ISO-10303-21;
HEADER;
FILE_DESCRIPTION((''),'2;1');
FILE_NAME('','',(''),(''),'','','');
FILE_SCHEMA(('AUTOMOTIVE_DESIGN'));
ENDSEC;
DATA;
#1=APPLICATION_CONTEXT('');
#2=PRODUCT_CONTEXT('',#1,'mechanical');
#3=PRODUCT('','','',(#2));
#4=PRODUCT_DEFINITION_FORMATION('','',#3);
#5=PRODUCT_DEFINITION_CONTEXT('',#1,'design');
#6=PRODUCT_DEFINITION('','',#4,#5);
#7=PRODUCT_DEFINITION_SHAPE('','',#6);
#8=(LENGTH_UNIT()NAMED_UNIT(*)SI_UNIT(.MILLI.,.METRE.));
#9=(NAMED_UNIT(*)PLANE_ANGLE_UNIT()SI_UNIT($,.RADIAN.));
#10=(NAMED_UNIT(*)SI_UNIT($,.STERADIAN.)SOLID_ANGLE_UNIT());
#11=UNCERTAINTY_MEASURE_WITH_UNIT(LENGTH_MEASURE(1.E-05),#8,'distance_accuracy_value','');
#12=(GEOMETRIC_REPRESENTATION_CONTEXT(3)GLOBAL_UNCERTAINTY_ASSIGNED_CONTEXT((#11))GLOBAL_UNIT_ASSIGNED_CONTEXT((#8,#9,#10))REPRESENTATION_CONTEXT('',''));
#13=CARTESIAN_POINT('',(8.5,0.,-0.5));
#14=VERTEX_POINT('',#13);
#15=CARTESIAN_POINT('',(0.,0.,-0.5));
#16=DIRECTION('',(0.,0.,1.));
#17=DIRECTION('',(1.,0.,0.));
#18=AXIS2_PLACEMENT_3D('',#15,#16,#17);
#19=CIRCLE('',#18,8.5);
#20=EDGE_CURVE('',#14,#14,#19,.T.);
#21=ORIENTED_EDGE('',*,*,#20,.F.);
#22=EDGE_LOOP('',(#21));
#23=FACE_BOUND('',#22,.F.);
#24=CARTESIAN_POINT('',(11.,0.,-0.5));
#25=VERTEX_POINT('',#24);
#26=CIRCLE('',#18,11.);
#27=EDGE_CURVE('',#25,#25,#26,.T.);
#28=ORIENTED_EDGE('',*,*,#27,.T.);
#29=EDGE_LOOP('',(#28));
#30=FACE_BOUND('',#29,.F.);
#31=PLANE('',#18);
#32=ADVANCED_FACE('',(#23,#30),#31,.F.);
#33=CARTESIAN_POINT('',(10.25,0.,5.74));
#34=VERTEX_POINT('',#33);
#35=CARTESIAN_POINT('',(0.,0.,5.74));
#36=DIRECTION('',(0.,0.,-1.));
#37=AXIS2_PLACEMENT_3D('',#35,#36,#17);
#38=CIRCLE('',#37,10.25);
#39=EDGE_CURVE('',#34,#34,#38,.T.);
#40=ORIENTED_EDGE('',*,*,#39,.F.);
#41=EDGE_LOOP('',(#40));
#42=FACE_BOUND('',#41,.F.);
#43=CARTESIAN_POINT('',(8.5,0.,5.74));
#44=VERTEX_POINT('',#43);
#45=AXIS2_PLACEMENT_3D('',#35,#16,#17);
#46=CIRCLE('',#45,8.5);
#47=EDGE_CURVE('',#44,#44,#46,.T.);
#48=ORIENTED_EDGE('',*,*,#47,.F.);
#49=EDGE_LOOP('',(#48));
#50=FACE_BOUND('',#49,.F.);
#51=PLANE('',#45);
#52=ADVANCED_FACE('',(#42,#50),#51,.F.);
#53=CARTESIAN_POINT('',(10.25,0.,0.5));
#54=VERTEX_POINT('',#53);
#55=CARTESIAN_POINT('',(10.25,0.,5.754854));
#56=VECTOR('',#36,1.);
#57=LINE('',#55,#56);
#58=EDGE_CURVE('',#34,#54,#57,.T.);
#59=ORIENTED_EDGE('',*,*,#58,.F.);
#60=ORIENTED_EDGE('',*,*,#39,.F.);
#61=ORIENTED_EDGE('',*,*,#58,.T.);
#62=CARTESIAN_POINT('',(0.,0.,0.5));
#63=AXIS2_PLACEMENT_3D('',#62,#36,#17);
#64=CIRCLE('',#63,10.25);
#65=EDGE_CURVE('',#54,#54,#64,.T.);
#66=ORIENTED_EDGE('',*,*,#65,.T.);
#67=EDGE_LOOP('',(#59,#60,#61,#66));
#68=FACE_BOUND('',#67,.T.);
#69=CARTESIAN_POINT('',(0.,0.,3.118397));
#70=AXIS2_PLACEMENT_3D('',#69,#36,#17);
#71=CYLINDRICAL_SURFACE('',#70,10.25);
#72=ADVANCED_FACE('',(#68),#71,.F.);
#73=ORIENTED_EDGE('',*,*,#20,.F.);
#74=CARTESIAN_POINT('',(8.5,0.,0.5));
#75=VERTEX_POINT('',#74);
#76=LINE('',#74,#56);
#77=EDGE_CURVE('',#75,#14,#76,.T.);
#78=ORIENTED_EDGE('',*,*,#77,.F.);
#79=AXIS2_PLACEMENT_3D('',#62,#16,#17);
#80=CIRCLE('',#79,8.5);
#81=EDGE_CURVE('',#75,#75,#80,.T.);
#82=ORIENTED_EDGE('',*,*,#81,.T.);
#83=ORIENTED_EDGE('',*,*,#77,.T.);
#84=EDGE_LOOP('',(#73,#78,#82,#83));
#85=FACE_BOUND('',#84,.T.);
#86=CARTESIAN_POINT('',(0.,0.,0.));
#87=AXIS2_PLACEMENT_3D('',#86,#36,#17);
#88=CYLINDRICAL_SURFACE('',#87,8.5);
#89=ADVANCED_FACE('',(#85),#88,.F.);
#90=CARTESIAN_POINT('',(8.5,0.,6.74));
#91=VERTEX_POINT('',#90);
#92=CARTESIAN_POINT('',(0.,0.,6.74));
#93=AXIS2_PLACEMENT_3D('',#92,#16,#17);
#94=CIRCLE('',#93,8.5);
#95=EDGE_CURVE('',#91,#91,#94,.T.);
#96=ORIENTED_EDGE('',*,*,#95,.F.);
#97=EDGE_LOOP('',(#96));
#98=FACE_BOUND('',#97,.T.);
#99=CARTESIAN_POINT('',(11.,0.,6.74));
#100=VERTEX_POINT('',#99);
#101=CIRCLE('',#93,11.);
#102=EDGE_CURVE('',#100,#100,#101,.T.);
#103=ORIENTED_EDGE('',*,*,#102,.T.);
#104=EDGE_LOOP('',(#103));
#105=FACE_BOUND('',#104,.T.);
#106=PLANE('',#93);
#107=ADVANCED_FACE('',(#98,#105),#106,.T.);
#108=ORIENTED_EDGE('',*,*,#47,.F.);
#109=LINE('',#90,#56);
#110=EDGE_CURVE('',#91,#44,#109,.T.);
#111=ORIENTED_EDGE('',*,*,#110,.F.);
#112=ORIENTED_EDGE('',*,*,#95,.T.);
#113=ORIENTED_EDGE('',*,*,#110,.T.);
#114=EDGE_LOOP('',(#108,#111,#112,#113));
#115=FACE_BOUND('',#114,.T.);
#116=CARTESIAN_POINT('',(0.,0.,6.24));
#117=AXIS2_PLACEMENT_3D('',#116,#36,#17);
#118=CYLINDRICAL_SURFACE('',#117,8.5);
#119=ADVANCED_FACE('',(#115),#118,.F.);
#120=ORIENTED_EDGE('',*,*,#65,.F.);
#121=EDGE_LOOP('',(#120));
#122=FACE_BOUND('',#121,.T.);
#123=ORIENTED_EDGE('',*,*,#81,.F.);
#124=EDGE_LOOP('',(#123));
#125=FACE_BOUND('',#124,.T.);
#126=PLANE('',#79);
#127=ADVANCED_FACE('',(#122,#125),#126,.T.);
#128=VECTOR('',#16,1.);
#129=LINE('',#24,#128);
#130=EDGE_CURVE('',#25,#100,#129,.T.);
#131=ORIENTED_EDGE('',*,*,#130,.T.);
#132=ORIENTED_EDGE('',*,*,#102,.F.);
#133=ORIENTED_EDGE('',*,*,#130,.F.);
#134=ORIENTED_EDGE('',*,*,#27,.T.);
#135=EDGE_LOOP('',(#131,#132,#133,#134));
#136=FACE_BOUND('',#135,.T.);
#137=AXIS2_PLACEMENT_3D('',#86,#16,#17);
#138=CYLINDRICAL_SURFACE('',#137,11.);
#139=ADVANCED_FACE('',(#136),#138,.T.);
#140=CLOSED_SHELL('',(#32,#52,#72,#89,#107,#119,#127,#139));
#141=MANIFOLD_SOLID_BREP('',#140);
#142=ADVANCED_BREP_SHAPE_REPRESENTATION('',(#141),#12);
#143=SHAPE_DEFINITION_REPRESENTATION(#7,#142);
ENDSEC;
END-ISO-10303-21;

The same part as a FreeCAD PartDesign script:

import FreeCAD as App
import Part
import Sketcher

V = App.Vector

doc = App.newDocument("Part")
params = doc.addObject("Spreadsheet::Sheet", "Params")
for row, (alias, value) in enumerate([
    ("sketch1_diameter", "22 mm"),
    ("sketch1_diameter2", "17 mm"),
    ("pad1_length", "1 mm"),
    ("sketch2_diameter", "22 mm"),
    ("sketch2_diameter2", "17 mm"),
    ("pad2_length", "1 mm"),
    ("sketch3_diameter", "22 mm"),
    ("sketch3_diameter2", "20.5 mm"),
    ("pad3_length", "5.272913 mm"),
], start=1):
    params.set(f"A{row}", alias)
    params.set(f"B{row}", "=" + value)
    params.setAlias(f"B{row}", alias)

body = doc.addObject("PartDesign::Body", "Body")

# Sketch on XY plane
sketch1 = body.newObject("Sketcher::SketchObject", "Sketch")
sketch1.AttachmentSupport = (doc.getObject("XY_Plane"), [""])
sketch1.MapMode = "FlatFace"
sketch1.AttachmentOffset = App.Placement(V(0, 0, 6.24), App.Rotation())
sketch1.addGeometry([
    Part.Circle(V(0, 0, 0), V(0, 0, 1), 11),
    Part.Circle(V(0, 0, 0), V(0, 0, 1), 8.5),
], False)
sketch1.addConstraint([
    Sketcher.Constraint("Coincident", 0, 3, -1, 1),
    Sketcher.Constraint("Coincident", 1, 3, -1, 1),
    Sketcher.Constraint("Diameter", 0, 22.0),
    Sketcher.Constraint("Diameter", 1, 17.0),
])
sketch1.setExpression("Constraints[2]", "Params.sketch1_diameter")
sketch1.setExpression("Constraints[3]", "Params.sketch1_diameter2")
pad1 = body.newObject("PartDesign::Pad", "Pad")
pad1.Profile = sketch1
pad1.setExpression("Length", "Params.pad1_length")
pad1.Midplane = True
body2 = doc.addObject("PartDesign::Body", "Body001")

# Sketch on XY plane
sketch2 = body2.newObject("Sketcher::SketchObject", "Sketch001")
sketch2.AttachmentSupport = (doc.getObject("XY_Plane001"), [""])
sketch2.MapMode = "FlatFace"
sketch2.addGeometry([
    Part.Circle(V(0, 0, 0), V(0, 0, 1), 11),
    Part.Circle(V(0, 0, 0), V(0, 0, 1), 8.5),
], False)
sketch2.addConstraint([
    Sketcher.Constraint("Coincident", 0, 3, -1, 1),
    Sketcher.Constraint("Coincident", 1, 3, -1, 1),
    Sketcher.Constraint("Diameter", 0, 22.0),
    Sketcher.Constraint("Diameter", 1, 17.0),
])
sketch2.setExpression("Constraints[2]", "Params.sketch2_diameter")
sketch2.setExpression("Constraints[3]", "Params.sketch2_diameter2")
pad2 = body2.newObject("PartDesign::Pad", "Pad001")
pad2.Profile = sketch2
pad2.setExpression("Length", "Params.pad2_length")
pad2.Midplane = True
body.AllowCompound = True
doc.recompute()

boolean = body.newObject("PartDesign::Boolean", "Boolean")
boolean.Type = "Fuse"
boolean.addObjects([body2])

# Sketch on XY plane
sketch3 = body.newObject("Sketcher::SketchObject", "Sketch002")
sketch3.AttachmentSupport = (doc.getObject("XY_Plane"), [""])
sketch3.MapMode = "FlatFace"
sketch3.AttachmentOffset = App.Placement(V(0, 0, 3.118397), App.Rotation())
sketch3.addGeometry([
    Part.Circle(V(0, 0, 0), V(0, 0, 1), 11),
    Part.Circle(V(0, 0, 0), V(0, 0, 1), 10.25),
], False)
sketch3.addConstraint([
    Sketcher.Constraint("Coincident", 0, 3, -1, 1),
    Sketcher.Constraint("Coincident", 1, 3, -1, 1),
    Sketcher.Constraint("Diameter", 0, 22.0),
    Sketcher.Constraint("Diameter", 1, 20.5),
])
sketch3.setExpression("Constraints[2]", "Params.sketch3_diameter")
sketch3.setExpression("Constraints[3]", "Params.sketch3_diameter2")
pad3 = body.newObject("PartDesign::Pad", "Pad002")
pad3.Profile = sketch3
pad3.setExpression("Length", "Params.pad3_length")
pad3.Midplane = True

doc.recompute()
